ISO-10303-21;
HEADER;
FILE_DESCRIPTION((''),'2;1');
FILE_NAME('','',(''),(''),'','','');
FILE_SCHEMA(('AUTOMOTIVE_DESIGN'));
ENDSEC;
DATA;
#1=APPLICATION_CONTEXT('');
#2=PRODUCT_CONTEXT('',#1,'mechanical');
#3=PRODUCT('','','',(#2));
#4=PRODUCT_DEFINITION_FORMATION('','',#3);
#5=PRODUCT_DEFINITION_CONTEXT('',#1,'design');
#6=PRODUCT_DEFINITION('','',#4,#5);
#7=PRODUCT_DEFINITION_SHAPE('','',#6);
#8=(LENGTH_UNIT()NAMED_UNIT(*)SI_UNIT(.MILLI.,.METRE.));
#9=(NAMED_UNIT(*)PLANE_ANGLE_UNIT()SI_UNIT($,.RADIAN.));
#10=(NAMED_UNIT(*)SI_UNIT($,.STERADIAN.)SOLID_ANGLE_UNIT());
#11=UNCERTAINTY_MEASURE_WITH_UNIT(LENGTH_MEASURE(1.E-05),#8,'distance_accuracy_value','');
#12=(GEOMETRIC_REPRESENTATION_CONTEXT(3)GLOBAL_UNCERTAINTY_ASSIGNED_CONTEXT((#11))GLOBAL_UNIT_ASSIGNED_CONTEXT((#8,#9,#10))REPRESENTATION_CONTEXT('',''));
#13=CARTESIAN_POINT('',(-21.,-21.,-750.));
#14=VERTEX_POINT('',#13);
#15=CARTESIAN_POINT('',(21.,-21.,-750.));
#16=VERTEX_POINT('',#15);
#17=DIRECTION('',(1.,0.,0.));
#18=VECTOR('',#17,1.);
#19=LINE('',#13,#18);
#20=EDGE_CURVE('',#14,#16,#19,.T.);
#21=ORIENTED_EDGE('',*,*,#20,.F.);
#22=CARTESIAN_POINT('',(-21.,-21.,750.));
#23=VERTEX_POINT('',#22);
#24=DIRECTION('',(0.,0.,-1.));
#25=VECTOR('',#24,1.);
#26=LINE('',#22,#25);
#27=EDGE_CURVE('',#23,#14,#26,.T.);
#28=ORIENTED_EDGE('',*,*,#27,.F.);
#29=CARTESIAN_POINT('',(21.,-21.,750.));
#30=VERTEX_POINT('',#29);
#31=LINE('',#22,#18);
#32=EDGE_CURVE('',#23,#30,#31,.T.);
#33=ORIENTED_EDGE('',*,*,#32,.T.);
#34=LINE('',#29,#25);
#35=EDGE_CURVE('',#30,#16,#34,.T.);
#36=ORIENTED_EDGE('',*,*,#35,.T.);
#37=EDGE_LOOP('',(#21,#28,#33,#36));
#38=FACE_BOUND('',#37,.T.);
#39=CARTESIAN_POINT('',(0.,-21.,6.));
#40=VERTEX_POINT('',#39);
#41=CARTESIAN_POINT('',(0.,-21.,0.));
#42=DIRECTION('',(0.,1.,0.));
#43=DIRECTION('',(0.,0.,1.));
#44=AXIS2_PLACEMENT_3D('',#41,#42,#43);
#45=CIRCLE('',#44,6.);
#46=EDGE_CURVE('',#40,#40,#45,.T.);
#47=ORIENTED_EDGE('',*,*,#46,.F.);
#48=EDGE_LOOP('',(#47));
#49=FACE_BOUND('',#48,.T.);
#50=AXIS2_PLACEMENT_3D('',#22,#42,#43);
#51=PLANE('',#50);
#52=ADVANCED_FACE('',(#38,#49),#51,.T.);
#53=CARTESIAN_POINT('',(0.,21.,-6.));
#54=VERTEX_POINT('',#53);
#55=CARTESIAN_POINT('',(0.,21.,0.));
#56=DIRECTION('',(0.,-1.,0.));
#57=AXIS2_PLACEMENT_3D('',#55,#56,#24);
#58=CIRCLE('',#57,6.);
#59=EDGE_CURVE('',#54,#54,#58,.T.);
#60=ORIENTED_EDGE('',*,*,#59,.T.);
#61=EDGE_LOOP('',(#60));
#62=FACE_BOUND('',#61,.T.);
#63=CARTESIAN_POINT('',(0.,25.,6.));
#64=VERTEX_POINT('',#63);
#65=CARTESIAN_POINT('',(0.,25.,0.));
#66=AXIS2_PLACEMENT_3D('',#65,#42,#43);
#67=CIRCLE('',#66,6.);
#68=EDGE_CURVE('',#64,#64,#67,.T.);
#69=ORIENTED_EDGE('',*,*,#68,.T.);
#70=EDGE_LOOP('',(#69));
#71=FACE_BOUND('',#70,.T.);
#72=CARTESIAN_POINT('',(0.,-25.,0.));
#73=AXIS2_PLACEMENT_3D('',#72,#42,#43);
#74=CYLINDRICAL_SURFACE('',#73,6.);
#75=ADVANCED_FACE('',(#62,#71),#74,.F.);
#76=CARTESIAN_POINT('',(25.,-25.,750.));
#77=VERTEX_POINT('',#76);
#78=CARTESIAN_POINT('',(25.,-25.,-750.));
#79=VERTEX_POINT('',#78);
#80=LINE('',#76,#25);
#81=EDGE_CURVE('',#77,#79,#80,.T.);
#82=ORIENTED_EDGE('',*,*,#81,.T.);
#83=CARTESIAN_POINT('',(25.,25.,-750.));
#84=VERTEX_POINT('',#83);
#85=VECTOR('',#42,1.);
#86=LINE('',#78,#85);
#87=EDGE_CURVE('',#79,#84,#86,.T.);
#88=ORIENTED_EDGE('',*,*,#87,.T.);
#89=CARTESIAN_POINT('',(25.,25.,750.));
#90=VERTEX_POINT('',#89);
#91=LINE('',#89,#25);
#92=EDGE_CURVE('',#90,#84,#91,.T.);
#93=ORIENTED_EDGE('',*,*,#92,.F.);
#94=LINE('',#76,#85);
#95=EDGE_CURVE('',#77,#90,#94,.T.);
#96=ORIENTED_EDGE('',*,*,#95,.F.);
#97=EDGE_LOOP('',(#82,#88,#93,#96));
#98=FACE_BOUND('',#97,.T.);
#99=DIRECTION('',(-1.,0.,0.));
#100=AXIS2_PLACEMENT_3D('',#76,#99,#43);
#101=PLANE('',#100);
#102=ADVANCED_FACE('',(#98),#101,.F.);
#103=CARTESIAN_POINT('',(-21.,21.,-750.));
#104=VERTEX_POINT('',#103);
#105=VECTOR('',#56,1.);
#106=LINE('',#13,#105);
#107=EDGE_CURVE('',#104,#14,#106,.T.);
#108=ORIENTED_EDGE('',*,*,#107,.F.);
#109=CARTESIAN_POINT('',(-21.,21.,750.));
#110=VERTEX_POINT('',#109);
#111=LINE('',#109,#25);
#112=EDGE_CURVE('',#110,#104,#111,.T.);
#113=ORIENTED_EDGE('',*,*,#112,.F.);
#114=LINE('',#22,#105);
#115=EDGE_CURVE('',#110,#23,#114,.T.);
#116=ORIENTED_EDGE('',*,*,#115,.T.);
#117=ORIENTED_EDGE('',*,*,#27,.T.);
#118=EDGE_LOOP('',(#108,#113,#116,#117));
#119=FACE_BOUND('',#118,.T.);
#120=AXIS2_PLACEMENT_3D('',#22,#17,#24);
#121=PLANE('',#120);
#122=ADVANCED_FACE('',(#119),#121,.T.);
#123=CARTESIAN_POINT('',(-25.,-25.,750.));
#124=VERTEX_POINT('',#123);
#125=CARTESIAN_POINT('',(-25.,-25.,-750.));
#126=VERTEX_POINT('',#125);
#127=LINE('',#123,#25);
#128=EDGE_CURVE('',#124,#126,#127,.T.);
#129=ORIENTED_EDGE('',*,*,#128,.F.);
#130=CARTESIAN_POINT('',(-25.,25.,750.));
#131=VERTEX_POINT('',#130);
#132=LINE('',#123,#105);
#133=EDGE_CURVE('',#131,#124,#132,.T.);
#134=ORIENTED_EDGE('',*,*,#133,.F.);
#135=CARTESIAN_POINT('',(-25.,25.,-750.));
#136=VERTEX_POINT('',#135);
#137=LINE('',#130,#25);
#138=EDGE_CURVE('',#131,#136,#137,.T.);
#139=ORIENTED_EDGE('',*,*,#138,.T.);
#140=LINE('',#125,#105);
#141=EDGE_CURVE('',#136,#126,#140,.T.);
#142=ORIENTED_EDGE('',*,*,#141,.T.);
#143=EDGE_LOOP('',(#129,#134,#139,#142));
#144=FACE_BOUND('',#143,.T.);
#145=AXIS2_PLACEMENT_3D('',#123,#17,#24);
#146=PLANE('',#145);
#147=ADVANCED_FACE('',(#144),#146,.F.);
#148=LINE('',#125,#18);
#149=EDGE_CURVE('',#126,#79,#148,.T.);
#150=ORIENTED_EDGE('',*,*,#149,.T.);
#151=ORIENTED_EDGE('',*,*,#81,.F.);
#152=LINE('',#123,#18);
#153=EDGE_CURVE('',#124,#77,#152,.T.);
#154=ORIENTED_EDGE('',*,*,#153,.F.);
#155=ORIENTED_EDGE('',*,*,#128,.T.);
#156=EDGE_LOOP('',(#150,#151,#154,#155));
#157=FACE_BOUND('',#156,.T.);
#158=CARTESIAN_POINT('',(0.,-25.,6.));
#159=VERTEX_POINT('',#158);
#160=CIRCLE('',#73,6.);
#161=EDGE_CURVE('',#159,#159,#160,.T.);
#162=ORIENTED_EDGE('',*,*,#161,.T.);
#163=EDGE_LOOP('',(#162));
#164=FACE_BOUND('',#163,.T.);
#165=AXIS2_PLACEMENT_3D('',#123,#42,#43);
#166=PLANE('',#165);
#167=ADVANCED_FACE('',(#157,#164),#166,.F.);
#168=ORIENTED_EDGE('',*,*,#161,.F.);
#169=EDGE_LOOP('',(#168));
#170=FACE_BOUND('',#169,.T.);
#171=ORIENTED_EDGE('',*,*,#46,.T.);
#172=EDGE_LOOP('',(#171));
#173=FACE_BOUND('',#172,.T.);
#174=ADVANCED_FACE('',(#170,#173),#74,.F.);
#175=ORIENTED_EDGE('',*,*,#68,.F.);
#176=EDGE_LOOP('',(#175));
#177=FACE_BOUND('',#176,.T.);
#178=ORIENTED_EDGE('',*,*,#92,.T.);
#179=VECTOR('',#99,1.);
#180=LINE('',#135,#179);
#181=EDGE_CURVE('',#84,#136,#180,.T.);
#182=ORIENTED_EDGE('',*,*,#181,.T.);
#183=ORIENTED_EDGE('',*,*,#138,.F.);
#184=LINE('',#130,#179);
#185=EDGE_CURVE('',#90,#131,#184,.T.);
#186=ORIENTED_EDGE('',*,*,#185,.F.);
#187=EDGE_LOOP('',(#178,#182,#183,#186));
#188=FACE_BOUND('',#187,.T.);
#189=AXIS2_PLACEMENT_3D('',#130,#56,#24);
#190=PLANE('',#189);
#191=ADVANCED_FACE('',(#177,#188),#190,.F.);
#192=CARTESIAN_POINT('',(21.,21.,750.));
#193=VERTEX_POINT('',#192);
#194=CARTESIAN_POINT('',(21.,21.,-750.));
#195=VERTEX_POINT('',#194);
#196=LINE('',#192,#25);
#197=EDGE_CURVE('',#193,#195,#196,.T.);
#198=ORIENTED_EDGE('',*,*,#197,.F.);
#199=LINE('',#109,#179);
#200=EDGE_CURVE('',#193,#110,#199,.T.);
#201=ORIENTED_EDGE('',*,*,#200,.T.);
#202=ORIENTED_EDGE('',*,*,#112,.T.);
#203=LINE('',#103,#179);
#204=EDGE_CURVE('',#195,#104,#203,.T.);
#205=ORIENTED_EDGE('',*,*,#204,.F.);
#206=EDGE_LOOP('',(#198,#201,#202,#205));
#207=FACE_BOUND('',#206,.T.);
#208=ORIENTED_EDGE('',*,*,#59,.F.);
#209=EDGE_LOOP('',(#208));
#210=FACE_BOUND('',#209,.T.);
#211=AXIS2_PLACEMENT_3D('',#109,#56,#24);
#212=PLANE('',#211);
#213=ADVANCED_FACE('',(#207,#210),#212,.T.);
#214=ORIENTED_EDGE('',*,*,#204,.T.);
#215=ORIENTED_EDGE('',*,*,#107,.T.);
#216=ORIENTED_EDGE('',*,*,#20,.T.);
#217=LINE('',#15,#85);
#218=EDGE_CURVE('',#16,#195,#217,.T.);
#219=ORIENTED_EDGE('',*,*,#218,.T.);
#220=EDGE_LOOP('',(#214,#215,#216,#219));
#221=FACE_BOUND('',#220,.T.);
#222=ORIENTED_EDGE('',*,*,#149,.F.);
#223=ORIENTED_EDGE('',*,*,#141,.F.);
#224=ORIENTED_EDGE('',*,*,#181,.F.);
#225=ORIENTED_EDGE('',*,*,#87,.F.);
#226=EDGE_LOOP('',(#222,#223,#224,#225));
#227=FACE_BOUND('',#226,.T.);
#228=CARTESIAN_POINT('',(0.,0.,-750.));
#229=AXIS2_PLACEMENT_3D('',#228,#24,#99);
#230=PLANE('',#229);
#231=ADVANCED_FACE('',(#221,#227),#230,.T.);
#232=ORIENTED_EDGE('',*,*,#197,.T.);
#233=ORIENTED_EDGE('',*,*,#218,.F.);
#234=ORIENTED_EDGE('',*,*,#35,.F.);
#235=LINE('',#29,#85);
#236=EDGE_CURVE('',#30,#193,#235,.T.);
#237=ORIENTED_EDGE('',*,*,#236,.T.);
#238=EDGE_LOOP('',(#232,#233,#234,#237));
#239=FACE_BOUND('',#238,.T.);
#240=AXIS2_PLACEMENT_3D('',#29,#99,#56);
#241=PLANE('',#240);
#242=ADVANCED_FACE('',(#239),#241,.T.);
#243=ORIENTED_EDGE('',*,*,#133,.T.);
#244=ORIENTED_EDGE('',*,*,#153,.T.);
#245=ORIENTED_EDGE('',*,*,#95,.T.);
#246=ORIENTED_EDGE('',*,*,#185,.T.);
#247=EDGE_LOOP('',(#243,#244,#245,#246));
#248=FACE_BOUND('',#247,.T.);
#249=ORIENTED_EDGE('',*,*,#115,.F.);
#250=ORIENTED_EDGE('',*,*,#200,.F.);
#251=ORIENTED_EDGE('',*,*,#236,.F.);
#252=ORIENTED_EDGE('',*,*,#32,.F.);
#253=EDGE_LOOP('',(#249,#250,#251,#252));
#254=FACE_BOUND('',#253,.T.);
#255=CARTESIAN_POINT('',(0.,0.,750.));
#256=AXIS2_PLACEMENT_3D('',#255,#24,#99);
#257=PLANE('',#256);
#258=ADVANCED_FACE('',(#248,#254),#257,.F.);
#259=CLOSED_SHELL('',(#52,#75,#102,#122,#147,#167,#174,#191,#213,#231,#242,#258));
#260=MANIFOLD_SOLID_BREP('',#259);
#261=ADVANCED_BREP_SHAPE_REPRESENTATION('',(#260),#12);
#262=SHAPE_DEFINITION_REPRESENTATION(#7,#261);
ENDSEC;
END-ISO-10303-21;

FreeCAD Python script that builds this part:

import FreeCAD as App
import Part
import Sketcher

doc = App.newDocument("Part")
params = doc.addObject("Spreadsheet::Sheet", "Params")
for row, (alias, value) in enumerate([
    ("sketch1_width", "50 mm"),
    ("sketch1_width2", "42 mm"),
    ("pad1_length", "1500 mm"),
    ("sketch2_diameter", "12 mm"),
], start=1):
    params.set(f"A{row}", alias)
    params.set(f"B{row}", "=" + value)
    params.setAlias(f"B{row}", alias)

body = doc.addObject("PartDesign::Body", "Body")

sketch1 = body.newObject("Sketcher::SketchObject", "Sketch")
sketch1.AttachmentSupport = (doc.getObject("XY_Plane"), [""])
sketch1.MapMode = "FlatFace"
sketch1.addGeometry([
    Part.LineSegment(App.Vector(-25, 25, 0), App.Vector(-25, -25, 0)),
    Part.LineSegment(App.Vector(-25, -25, 0), App.Vector(25, -25, 0)),
    Part.LineSegment(App.Vector(25, -25, 0), App.Vector(25, 25, 0)),
    Part.LineSegment(App.Vector(25, 25, 0), App.Vector(-25, 25, 0)),
    Part.LineSegment(App.Vector(21, -21, 0), App.Vector(-21, -21, 0)),
    Part.LineSegment(App.Vector(-21, -21, 0), App.Vector(-21, 21, 0)),
    Part.LineSegment(App.Vector(-21, 21, 0), App.Vector(21, 21, 0)),
    Part.LineSegment(App.Vector(21, 21, 0), App.Vector(21, -21, 0)),
], False)
sketch1.addConstraint([
    Sketcher.Constraint("Coincident", 0, 2, 1, 1),
    Sketcher.Constraint("Coincident", 1, 2, 2, 1),
    Sketcher.Constraint("Coincident", 2, 2, 3, 1),
    Sketcher.Constraint("Coincident", 3, 2, 0, 1),
    Sketcher.Constraint("Coincident", 4, 2, 5, 1),
    Sketcher.Constraint("Coincident", 5, 2, 6, 1),
    Sketcher.Constraint("Coincident", 6, 2, 7, 1),
    Sketcher.Constraint("Coincident", 7, 2, 4, 1),
    Sketcher.Constraint("Vertical", 0),
    Sketcher.Constraint("Horizontal", 1),
    Sketcher.Constraint("Vertical", 2),
    Sketcher.Constraint("Horizontal", 3),
    Sketcher.Constraint("Horizontal", 4),
    Sketcher.Constraint("Vertical", 5),
    Sketcher.Constraint("Horizontal", 6),
    Sketcher.Constraint("Vertical", 7),
    Sketcher.Constraint("Symmetric", 0, 2, 2, 2, -1, 1),
    Sketcher.Constraint("Symmetric", 4, 2, 6, 2, -1, 1),
    Sketcher.Constraint("Equal", 3, 0),
    Sketcher.Constraint("Equal", 6, 5),
    Sketcher.Constraint("DistanceX", 1, 1, 1, 2, 50.0),
    Sketcher.Constraint("DistanceX", 4, 2, 4, 1, 42.0),
])
sketch1.setExpression("Constraints[20]", "Params.sketch1_width")
sketch1.setExpression("Constraints[21]", "Params.sketch1_width2")
pad1 = body.newObject("PartDesign::Pad", "Pad")
pad1.Profile = sketch1
pad1.setExpression("Length", "Params.pad1_length")
pad1.Midplane = True

sketch2 = body.newObject("Sketcher::SketchObject", "Sketch001")
sketch2.AttachmentSupport = (doc.getObject("XZ_Plane"), [""])
sketch2.MapMode = "FlatFace"
sketch2.AttachmentOffset = App.Placement(App.Vector(0, 0, -25), App.Rotation())
sketch2.addGeometry(Part.Circle(App.Vector(0, 0, 0), App.Vector(0, 0, 1), 6), False)
sketch2.addConstraint([
    Sketcher.Constraint("Coincident", 0, 3, -1, 1),
    Sketcher.Constraint("Diameter", 0, 12.0),
])
sketch2.setExpression("Constraints[1]", "Params.sketch2_diameter")
pocket1 = body.newObject("PartDesign::Pocket", "Pocket")
pocket1.Profile = sketch2
pocket1.Type = "ThroughAll"
pocket1.Reversed = True

doc.recompute()
